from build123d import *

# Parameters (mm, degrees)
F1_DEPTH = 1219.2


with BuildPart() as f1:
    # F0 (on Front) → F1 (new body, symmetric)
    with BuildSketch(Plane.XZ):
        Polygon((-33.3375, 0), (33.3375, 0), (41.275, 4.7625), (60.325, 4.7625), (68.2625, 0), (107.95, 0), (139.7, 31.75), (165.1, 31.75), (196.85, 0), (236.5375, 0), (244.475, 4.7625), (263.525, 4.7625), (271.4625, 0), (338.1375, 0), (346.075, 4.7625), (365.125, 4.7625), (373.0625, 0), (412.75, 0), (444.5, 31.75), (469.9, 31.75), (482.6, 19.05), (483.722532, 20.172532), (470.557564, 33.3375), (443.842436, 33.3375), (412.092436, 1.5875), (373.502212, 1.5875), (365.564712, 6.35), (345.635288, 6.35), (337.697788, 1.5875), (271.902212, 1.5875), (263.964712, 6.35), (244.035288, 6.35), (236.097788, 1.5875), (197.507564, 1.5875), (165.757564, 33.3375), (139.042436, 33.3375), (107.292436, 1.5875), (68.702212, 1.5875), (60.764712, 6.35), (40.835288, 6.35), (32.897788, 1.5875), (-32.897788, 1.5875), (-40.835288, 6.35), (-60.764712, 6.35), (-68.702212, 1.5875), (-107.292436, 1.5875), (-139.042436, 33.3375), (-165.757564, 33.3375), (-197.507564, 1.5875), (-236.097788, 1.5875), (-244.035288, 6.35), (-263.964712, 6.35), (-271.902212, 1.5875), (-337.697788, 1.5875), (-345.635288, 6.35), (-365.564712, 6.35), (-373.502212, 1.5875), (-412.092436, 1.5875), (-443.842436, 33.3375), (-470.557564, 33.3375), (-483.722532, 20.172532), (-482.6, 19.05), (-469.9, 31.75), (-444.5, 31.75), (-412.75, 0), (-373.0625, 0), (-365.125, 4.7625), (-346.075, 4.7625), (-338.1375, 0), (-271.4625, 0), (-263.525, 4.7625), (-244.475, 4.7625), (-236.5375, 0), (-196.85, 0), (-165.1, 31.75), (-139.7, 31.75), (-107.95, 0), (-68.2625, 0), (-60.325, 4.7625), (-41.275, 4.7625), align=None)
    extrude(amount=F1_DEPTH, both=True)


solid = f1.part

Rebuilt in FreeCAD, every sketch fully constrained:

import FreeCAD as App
import Part
import Sketcher
from FreeCAD import Vector
Q = App.Units.Quantity

doc = App.newDocument("Part")
params = doc.addObject("Spreadsheet::Sheet", "Params")
for row, (alias, value) in enumerate([
    ("sketch1_width", "1 in"),
    ("sketch1_width2", "0.75 in"),
    ("sketch1_width3", "2.625 in"),
    ("sketch1_width4", "1.5625 in"),
    ("sketch1_length", "0.0625 in"),
    ("pad1_length", "96 in"),
], start=1):
    params.set(f"A{row}", alias)
    params.set(f"B{row}", "=" + value)
    params.setAlias(f"B{row}", alias)

body = doc.addObject("PartDesign::Body", "Body")

# Sketch on XZ plane
sketch1 = body.newObject("Sketcher::SketchObject", "Sketch")
sketch1.AttachmentSupport = (doc.getObject("XZ_Plane"), [""])
sketch1.MapMode = "FlatFace"
sketch1.addGeometry([
    Part.LineSegment(Vector(-33.3, 0, 0), Vector(33.3, 0, 0)),  # 0
    Part.LineSegment(Vector(33.3, 0, 0), Vector(41.3, 4.8, 0)),  # 1
    Part.LineSegment(Vector(41.3, 4.8, 0), Vector(60.3, 4.8, 0)),  # 2
    Part.LineSegment(Vector(60.3, 4.8, 0), Vector(68.3, 0, 0)),  # 3
    Part.LineSegment(Vector(68.3, 0, 0), Vector(108, 0, 0)),  # 4
    Part.LineSegment(Vector(108, 0, 0), Vector(139.7, 31.8, 0)),  # 5
    Part.LineSegment(Vector(139.7, 31.8, 0), Vector(165.1, 31.8, 0)),  # 6
    Part.LineSegment(Vector(165.1, 31.8, 0), Vector(196.8, 0, 0)),  # 7
    Part.LineSegment(Vector(196.8, 0, 0), Vector(236.5, 0, 0)),  # 8
    Part.LineSegment(Vector(236.5, 0, 0), Vector(244.5, 4.8, 0)),  # 9
    Part.LineSegment(Vector(244.5, 4.8, 0), Vector(263.5, 4.8, 0)),  # 10
    Part.LineSegment(Vector(263.5, 4.8, 0), Vector(271.5, 0, 0)),  # 11
    Part.LineSegment(Vector(271.5, 0, 0), Vector(338.1, 0, 0)),  # 12
    Part.LineSegment(Vector(338.1, 0, 0), Vector(346.1, 4.8, 0)),  # 13
    Part.LineSegment(Vector(346.1, 4.8, 0), Vector(365.1, 4.8, 0)),  # 14
    Part.LineSegment(Vector(365.1, 4.8, 0), Vector(373.1, 0, 0)),  # 15
    Part.LineSegment(Vector(373.1, 0, 0), Vector(412.8, 0, 0)),  # 16
    Part.LineSegment(Vector(412.8, 0, 0), Vector(444.5, 31.8, 0)),  # 17
    Part.LineSegment(Vector(444.5, 31.8, 0), Vector(469.9, 31.8, 0)),  # 18
    Part.LineSegment(Vector(469.9, 31.8, 0), Vector(482.6, 19.1, 0)),  # 19
    Part.LineSegment(Vector(482.6, 19.1, 0), Vector(483.7, 20.2, 0)),  # 20
    Part.LineSegment(Vector(483.7, 20.2, 0), Vector(470.6, 33.3, 0)),  # 21
    Part.LineSegment(Vector(470.6, 33.3, 0), Vector(443.8, 33.3, 0)),  # 22
    Part.LineSegment(Vector(443.8, 33.3, 0), Vector(412.1, 1.6, 0)),  # 23
    Part.LineSegment(Vector(412.1, 1.6, 0), Vector(373.5, 1.6, 0)),  # 24
    Part.LineSegment(Vector(373.5, 1.6, 0), Vector(365.6, 6.3, 0)),  # 25
    Part.LineSegment(Vector(365.6, 6.3, 0), Vector(345.6, 6.3, 0)),  # 26
    Part.LineSegment(Vector(345.6, 6.3, 0), Vector(337.7, 1.6, 0)),  # 27
    Part.LineSegment(Vector(337.7, 1.6, 0), Vector(271.9, 1.6, 0)),  # 28
    Part.LineSegment(Vector(271.9, 1.6, 0), Vector(264, 6.3, 0)),  # 29
    Part.LineSegment(Vector(264, 6.3, 0), Vector(244, 6.3, 0)),  # 30
    Part.LineSegment(Vector(244, 6.3, 0), Vector(236.1, 1.6, 0)),  # 31
    Part.LineSegment(Vector(236.1, 1.6, 0), Vector(197.5, 1.6, 0)),  # 32
    Part.LineSegment(Vector(197.5, 1.6, 0), Vector(165.8, 33.3, 0)),  # 33
    Part.LineSegment(Vector(165.8, 33.3, 0), Vector(139, 33.3, 0)),  # 34
    Part.LineSegment(Vector(139, 33.3, 0), Vector(107.3, 1.6, 0)),  # 35
    Part.LineSegment(Vector(107.3, 1.6, 0), Vector(68.7, 1.6, 0)),  # 36
    Part.LineSegment(Vector(68.7, 1.6, 0), Vector(60.8, 6.3, 0)),  # 37
    Part.LineSegment(Vector(60.8, 6.3, 0), Vector(40.8, 6.3, 0)),  # 38
    Part.LineSegment(Vector(40.8, 6.3, 0), Vector(32.9, 1.6, 0)),  # 39
    Part.LineSegment(Vector(32.9, 1.6, 0), Vector(-32.9, 1.6, 0)),  # 40
    Part.LineSegment(Vector(-32.9, 1.6, 0), Vector(-40.8, 6.3, 0)),  # 41
    Part.LineSegment(Vector(-40.8, 6.3, 0), Vector(-60.8, 6.3, 0)),  # 42
    Part.LineSegment(Vector(-60.8, 6.3, 0), Vector(-68.7, 1.6, 0)),  # 43
    Part.LineSegment(Vector(-68.7, 1.6, 0), Vector(-107.3, 1.6, 0)),  # 44
    Part.LineSegment(Vector(-107.3, 1.6, 0), Vector(-139, 33.3, 0)),  # 45
    Part.LineSegment(Vector(-139, 33.3, 0), Vector(-165.8, 33.3, 0)),  # 46
    Part.LineSegment(Vector(-165.8, 33.3, 0), Vector(-197.5, 1.6, 0)),  # 47
    Part.LineSegment(Vector(-197.5, 1.6, 0), Vector(-236.1, 1.6, 0)),  # 48
    Part.LineSegment(Vector(-236.1, 1.6, 0), Vector(-244, 6.3, 0)),  # 49
    Part.LineSegment(Vector(-244, 6.3, 0), Vector(-264, 6.3, 0)),  # 50
    Part.LineSegment(Vector(-264, 6.3, 0), Vector(-271.9, 1.6, 0)),  # 51
    Part.LineSegment(Vector(-271.9, 1.6, 0), Vector(-337.7, 1.6, 0)),  # 52
    Part.LineSegment(Vector(-337.7, 1.6, 0), Vector(-345.6, 6.3, 0)),  # 53
    Part.LineSegment(Vector(-345.6, 6.3, 0), Vector(-365.6, 6.3, 0)),  # 54
    Part.LineSegment(Vector(-365.6, 6.3, 0), Vector(-373.5, 1.6, 0)),  # 55
    Part.LineSegment(Vector(-373.5, 1.6, 0), Vector(-412.1, 1.6, 0)),  # 56
    Part.LineSegment(Vector(-412.1, 1.6, 0), Vector(-443.8, 33.3, 0)),  # 57
    Part.LineSegment(Vector(-443.8, 33.3, 0), Vector(-470.6, 33.3, 0)),  # 58
    Part.LineSegment(Vector(-470.6, 33.3, 0), Vector(-483.7, 20.2, 0)),  # 59
    Part.LineSegment(Vector(-483.7, 20.2, 0), Vector(-482.6, 19.1, 0)),  # 60
    Part.LineSegment(Vector(-482.6, 19.1, 0), Vector(-469.9, 31.8, 0)),  # 61
    Part.LineSegment(Vector(-469.9, 31.8, 0), Vector(-444.5, 31.8, 0)),  # 62
    Part.LineSegment(Vector(-444.5, 31.8, 0), Vector(-412.8, 0, 0)),  # 63
    Part.LineSegment(Vector(-412.8, 0, 0), Vector(-373.1, 0, 0)),  # 64
    Part.LineSegment(Vector(-373.1, 0, 0), Vector(-365.1, 4.8, 0)),  # 65
    Part.LineSegment(Vector(-365.1, 4.8, 0), Vector(-346.1, 4.8, 0)),  # 66
    Part.LineSegment(Vector(-346.1, 4.8, 0), Vector(-338.1, 0, 0)),  # 67
    Part.LineSegment(Vector(-338.1, 0, 0), Vector(-271.5, 0, 0)),  # 68
    Part.LineSegment(Vector(-271.5, 0, 0), Vector(-263.5, 4.8, 0)),  # 69
    Part.LineSegment(Vector(-263.5, 4.8, 0), Vector(-244.5, 4.8, 0)),  # 70
    Part.LineSegment(Vector(-244.5, 4.8, 0), Vector(-236.5, 0, 0)),  # 71
    Part.LineSegment(Vector(-236.5, 0, 0), Vector(-196.8, 0, 0)),  # 72
    Part.LineSegment(Vector(-196.8, 0, 0), Vector(-165.1, 31.8, 0)),  # 73
    Part.LineSegment(Vector(-165.1, 31.8, 0), Vector(-139.7, 31.8, 0)),  # 74
    Part.LineSegment(Vector(-139.7, 31.8, 0), Vector(-108, 0, 0)),  # 75
    Part.LineSegment(Vector(-108, 0, 0), Vector(-68.3, 0, 0)),  # 76
    Part.LineSegment(Vector(-68.3, 0, 0), Vector(-60.3, 4.8, 0)),  # 77
    Part.LineSegment(Vector(-60.3, 4.8, 0), Vector(-41.3, 4.8, 0)),  # 78
    Part.LineSegment(Vector(-41.3, 4.8, 0), Vector(-33.3, 0, 0)),  # 79
], False)
sketch1.addConstraint([
    Sketcher.Constraint("Coincident", 0, 2, 1, 1),
    Sketcher.Constraint("Coincident", 1, 2, 2, 1),
    Sketcher.Constraint("Coincident", 2, 2, 3, 1),
    Sketcher.Constraint("Coincident", 3, 2, 4, 1),
    Sketcher.Constraint("Coincident", 4, 2, 5, 1),
    Sketcher.Constraint("Coincident", 5, 2, 6, 1),
    Sketcher.Constraint("Coincident", 6, 2, 7, 1),
    Sketcher.Constraint("Coincident", 7, 2, 8, 1),
    Sketcher.Constraint("Coincident", 8, 2, 9, 1),
    Sketcher.Constraint("Coincident", 9, 2, 10, 1),
    Sketcher.Constraint("Coincident", 10, 2, 11, 1),
    Sketcher.Constraint("Coincident", 11, 2, 12, 1),
    Sketcher.Constraint("Coincident", 12, 2, 13, 1),
    Sketcher.Constraint("Coincident", 13, 2, 14, 1),
    Sketcher.Constraint("Coincident", 14, 2, 15, 1),
    Sketcher.Constraint("Coincident", 15, 2, 16, 1),
    Sketcher.Constraint("Coincident", 16, 2, 17, 1),
    Sketcher.Constraint("Coincident", 17, 2, 18, 1),
    Sketcher.Constraint("Coincident", 18, 2, 19, 1),
    Sketcher.Constraint("Coincident", 19, 2, 20, 1),
    Sketcher.Constraint("Coincident", 20, 2, 21, 1),
    Sketcher.Constraint("Coincident", 21, 2, 22, 1),
    Sketcher.Constraint("Coincident", 22, 2, 23, 1),
    Sketcher.Constraint("Coincident", 23, 2, 24, 1),
    Sketcher.Constraint("Coincident", 24, 2, 25, 1),
    Sketcher.Constraint("Coincident", 25, 2, 26, 1),
    Sketcher.Constraint("Coincident", 26, 2, 27, 1),
    Sketcher.Constraint("Coincident", 27, 2, 28, 1),
    Sketcher.Constraint("Coincident", 28, 2, 29, 1),
    Sketcher.Constraint("Coincident", 29, 2, 30, 1),
    Sketcher.Constraint("Coincident", 30, 2, 31, 1),
    Sketcher.Constraint("Coincident", 31, 2, 32, 1),
    Sketcher.Constraint("Coincident", 32, 2, 33, 1),
    Sketcher.Constraint("Coincident", 33, 2, 34, 1),
    Sketcher.Constraint("Coincident", 34, 2, 35, 1),
    Sketcher.Constraint("Coincident", 35, 2, 36, 1),
    Sketcher.Constraint("Coincident", 36, 2, 37, 1),
    Sketcher.Constraint("Coincident", 37, 2, 38, 1),
    Sketcher.Constraint("Coincident", 38, 2, 39, 1),
    Sketcher.Constraint("Coincident", 39, 2, 40, 1),
    Sketcher.Constraint("Coincident", 40, 2, 41, 1),
    Sketcher.Constraint("Coincident", 41, 2, 42, 1),
    Sketcher.Constraint("Coincident", 42, 2, 43, 1),
    Sketcher.Constraint("Coincident", 43, 2, 44, 1),
    Sketcher.Constraint("Coincident", 44, 2, 45, 1),
    Sketcher.Constraint("Coincident", 45, 2, 46, 1),
    Sketcher.Constraint("Coincident", 46, 2, 47, 1),
    Sketcher.Constraint("Coincident", 47, 2, 48, 1),
    Sketcher.Constraint("Coincident", 48, 2, 49, 1),
    Sketcher.Constraint("Coincident", 49, 2, 50, 1),
    Sketcher.Constraint("Coincident", 50, 2, 51, 1),
    Sketcher.Constraint("Coincident", 51, 2, 52, 1),
    Sketcher.Constraint("Coincident", 52, 2, 53, 1),
    Sketcher.Constraint("Coincident", 53, 2, 54, 1),
    Sketcher.Constraint("Coincident", 54, 2, 55, 1),
    Sketcher.Constraint("Coincident", 55, 2, 56, 1),
    Sketcher.Constraint("Coincident", 56, 2, 57, 1),
    Sketcher.Constraint("Coincident", 57, 2, 58, 1),
    Sketcher.Constraint("Coincident", 58, 2, 59, 1),
    Sketcher.Constraint("Coincident", 59, 2, 60, 1),
    Sketcher.Constraint("Coincident", 60, 2, 61, 1),
    Sketcher.Constraint("Coincident", 61, 2, 62, 1),
    Sketcher.Constraint("Coincident", 62, 2, 63, 1),
    Sketcher.Constraint("Coincident", 63, 2, 64, 1),
    Sketcher.Constraint("Coincident", 64, 2, 65, 1),
    Sketcher.Constraint("Coincident", 65, 2, 66, 1),
    Sketcher.Constraint("Coincident", 66, 2, 67, 1),
    Sketcher.Constraint("Coincident", 67, 2, 68, 1),
    Sketcher.Constraint("Coincident", 68, 2, 69, 1),
    Sketcher.Constraint("Coincident", 69, 2, 70, 1),
    Sketcher.Constraint("Coincident", 70, 2, 71, 1),
    Sketcher.Constraint("Coincident", 71, 2, 72, 1),
    Sketcher.Constraint("Coincident", 72, 2, 73, 1),
    Sketcher.Constraint("Coincident", 73, 2, 74, 1),
    Sketcher.Constraint("Coincident", 74, 2, 75, 1),
    Sketcher.Constraint("Coincident", 75, 2, 76, 1),
    Sketcher.Constraint("Coincident", 76, 2, 77, 1),
    Sketcher.Constraint("Coincident", 77, 2, 78, 1),
    Sketcher.Constraint("Coincident", 78, 2, 79, 1),
    Sketcher.Constraint("Coincident", 79, 2, 0, 1),
    Sketcher.Constraint("Horizontal", 0),
    Sketcher.Constraint("Horizontal", 2),
    Sketcher.Constraint("Horizontal", 4),
    Sketcher.Constraint("Horizontal", 6),
    Sketcher.Constraint("Horizontal", 8),
    Sketcher.Constraint("Horizontal", 10),
    Sketcher.Constraint("Horizontal", 12),
    Sketcher.Constraint("Horizontal", 14),
    Sketcher.Constraint("Horizontal", 16),
    Sketcher.Constraint("Horizontal", 18),
    Sketcher.Constraint("Horizontal", 22),
    Sketcher.Constraint("Horizontal", 24),
    Sketcher.Constraint("Horizontal", 26),
    Sketcher.Constraint("Horizontal", 28),
    Sketcher.Constraint("Horizontal", 30),
    Sketcher.Constraint("Horizontal", 32),
    Sketcher.Constraint("Horizontal", 34),
    Sketcher.Constraint("Horizontal", 36),
    Sketcher.Constraint("Horizontal", 38),
    Sketcher.Constraint("Horizontal", 40),
    Sketcher.Constraint("Horizontal", 42),
    Sketcher.Constraint("Horizontal", 44),
    Sketcher.Constraint("Horizontal", 46),
    Sketcher.Constraint("Horizontal", 48),
    Sketcher.Constraint("Horizontal", 50),
    Sketcher.Constraint("Horizontal", 52),
    Sketcher.Constraint("Horizontal", 54),
    Sketcher.Constraint("Horizontal", 56),
    Sketcher.Constraint("Horizontal", 58),
    Sketcher.Constraint("Horizontal", 62),
    Sketcher.Constraint("Horizontal", 64),
    Sketcher.Constraint("Horizontal", 66),
    Sketcher.Constraint("Horizontal", 68),
    Sketcher.Constraint("Horizontal", 70),
    Sketcher.Constraint("Horizontal", 72),
    Sketcher.Constraint("Horizontal", 74),
    Sketcher.Constraint("Horizontal", 76),
    Sketcher.Constraint("Horizontal", 78),
    Sketcher.Constraint("Symmetric", 16, 2, 63, 2, -1, 1),
    Sketcher.Constraint("Symmetric", 12, 2, 67, 2, -1, 1),
    Sketcher.Constraint("Symmetric", 8, 2, 71, 2, -1, 1),
    Sketcher.Constraint("Symmetric", 4, 2, 75, 2, -1, 1),
    Sketcher.Constraint("Symmetric", 0, 2, 79, 2, -1, 1),
    Sketcher.Constraint("Symmetric", 38, 2, 41, 2, -2),
    Sketcher.Constraint("Symmetric", 36, 2, 43, 2, -2),
    Sketcher.Constraint("Symmetric", 34, 2, 45, 2, -2),
    Sketcher.Constraint("Symmetric", 32, 2, 47, 2, -2),
    Sketcher.Constraint("Symmetric", 30, 2, 49, 2, -2),
    Sketcher.Constraint("Symmetric", 28, 2, 51, 2, -2),
    Sketcher.Constraint("Symmetric", 26, 2, 53, 2, -2),
    Sketcher.Constraint("Symmetric", 24, 2, 55, 2, -2),
    Sketcher.Constraint("Symmetric", 22, 2, 57, 2, -2),
    Sketcher.Constraint("Symmetric", 20, 2, 59, 2, -2),
    Sketcher.Constraint("Symmetric", 19, 2, 60, 2, -2),
    Sketcher.Constraint("Symmetric", 18, 2, 61, 2, -2),
    Sketcher.Constraint("Symmetric", 15, 2, 64, 2, -2),
    Sketcher.Constraint("Symmetric", 14, 2, 65, 2, -2),
    Sketcher.Constraint("Symmetric", 11, 2, 68, 2, -2),
    Sketcher.Constraint("Symmetric", 10, 2, 69, 2, -2),
    Sketcher.Constraint("Symmetric", 7, 2, 72, 2, -2),
    Sketcher.Constraint("Symmetric", 6, 2, 73, 2, -2),
    Sketcher.Constraint("Symmetric", 3, 2, 76, 2, -2),
    Sketcher.Constraint("Symmetric", 2, 2, 77, 2, -2),
    Sketcher.Constraint("Perpendicular", 5, 7),
    Sketcher.Constraint("Parallel", 1, 9),
    Sketcher.Constraint("Parallel", 3, 11),
    Sketcher.Constraint("Parallel", 9, 13),
    Sketcher.Constraint("Parallel", 11, 15),
    Sketcher.Constraint("Perpendicular", 7, 17),
    Sketcher.Constraint("Perpendicular", 17, 19),
    Sketcher.Constraint("Perpendicular", 19, 20),
    Sketcher.Constraint("Perpendicular", 20, 21),
    Sketcher.Constraint("Perpendicular", 21, 23),
    Sketcher.Constraint("Parallel", 15, 25),
    Sketcher.Constraint("Parallel", 13, 27),
    Sketcher.Constraint("Parallel", 25, 29),
    Sketcher.Constraint("Parallel", 27, 31),
    Sketcher.Constraint("Perpendicular", 23, 33),
    Sketcher.Constraint("Perpendicular", 33, 35),
    Sketcher.Constraint("Parallel", 29, 37),
    Sketcher.Constraint("Parallel", 31, 39),
    Sketcher.Constraint("Parallel", 37, 41),
    Sketcher.Constraint("Parallel", 39, 43),
    Sketcher.Constraint("Perpendicular", 35, 45),
    Sketcher.Constraint("Perpendicular", 45, 47),
    Sketcher.Constraint("Parallel", 41, 49),
    Sketcher.Constraint("Parallel", 43, 51),
    Sketcher.Constraint("Parallel", 49, 53),
    Sketcher.Constraint("Parallel", 51, 55),
    Sketcher.Constraint("Perpendicular", 47, 57),
    Sketcher.Constraint("Perpendicular", 57, 59),
    Sketcher.Constraint("Perpendicular", 59, 60),
    Sketcher.Constraint("Perpendicular", 61, 63),
    Sketcher.Constraint("Parallel", 55, 65),
    Sketcher.Constraint("Parallel", 53, 67),
    Sketcher.Constraint("Parallel", 67, 71),
    Sketcher.Constraint("Perpendicular", 73, 75),
    Sketcher.Constraint("Parallel", 71, 79),
    Sketcher.Constraint("Horizontal", 2, 2, 9, 2),
    Sketcher.Constraint("Horizontal", 10, 2, 13, 2),
    Sketcher.Constraint("Horizontal", 6, 2, 17, 2),
    Sketcher.Constraint("Horizontal", 24, 2, 27, 2),
    Sketcher.Constraint("Horizontal", 26, 2, 29, 2),
    Sketcher.Constraint("Horizontal", 28, 2, 31, 2),
    Sketcher.Constraint("Horizontal", 22, 2, 33, 2),
    Sketcher.Constraint("Horizontal", 32, 2, 35, 2),
    Sketcher.Constraint("Horizontal", 30, 2, 37, 2),
    Sketcher.Constraint("Horizontal", 36, 2, 39, 2),
    Sketcher.Constraint("Equal", 4, 8),
    Sketcher.Constraint("Equal", 2, 10),
    Sketcher.Constraint("Equal", 0, 12),
    Sketcher.Constraint("Equal", 10, 14),
    Sketcher.Constraint("Equal", 8, 16),
    Sketcher.Constraint("Equal", 6, 18),
    Sketcher.Constraint("Equal", 26, 30),
    Sketcher.Constraint("Equal", 24, 32),
    Sketcher.Constraint("Equal", 22, 34),
    Sketcher.Constraint("Equal", 32, 36),
    Sketcher.Constraint("Equal", 30, 38),
    Sketcher.Constraint("Equal", 28, 40),
    Sketcher.Constraint("Equal", 17, 23),
    Sketcher.Constraint("Equal", 15, 25),
    Sketcher.Constraint("DistanceX", 6, 1, 6, 2, Q("1 in")),
    Sketcher.Constraint("DistanceX", -1, 1, 19, 2, Q("19 in")),
    Sketcher.Constraint("DistanceX", 2, 1, 2, 2, Q("0.75 in")),
    Sketcher.Constraint("DistanceX", -1, 1, 5, 2, Q("5.5 in")),
    Sketcher.Constraint("DistanceX", 0, 1, 0, 2, Q("2.625 in")),
    Sketcher.Constraint("DistanceX", 4, 1, 4, 2, Q("1.5625 in")),
    Sketcher.Constraint("DistanceX", -1, 1, 4, 2, Q("4.25 in")),
    Sketcher.Constraint("DistanceY", -1, 1, 25, 2, Q("0.25 in")),
    Sketcher.Constraint("Distance", 20, Q("0.0625 in")),
    Sketcher.Constraint("DistanceX", 24, 2, 24, 1, Q("1.5193002 in")),
    Sketcher.Constraint("DistanceY", -1, 1, 1, 2, Q("0.1875 in")),
    Sketcher.Constraint("DistanceX", 22, 2, 22, 1, 26.715128),
    Sketcher.Constraint("DistanceX", 26, 2, 26, 1, 19.929424),
])
sketch1.setExpression("Constraints[202]", "Params.sketch1_width")
sketch1.setExpression("Constraints[204]", "Params.sketch1_width2")
sketch1.setExpression("Constraints[206]", "Params.sketch1_width3")
sketch1.setExpression("Constraints[207]", "Params.sketch1_width4")
sketch1.setExpression("Constraints[210]", "Params.sketch1_length")
pad1 = body.newObject("PartDesign::Pad", "Pad")
pad1.Profile = sketch1
pad1.setExpression("Length", "Params.pad1_length")
pad1.Midplane = True

doc.recompute()
